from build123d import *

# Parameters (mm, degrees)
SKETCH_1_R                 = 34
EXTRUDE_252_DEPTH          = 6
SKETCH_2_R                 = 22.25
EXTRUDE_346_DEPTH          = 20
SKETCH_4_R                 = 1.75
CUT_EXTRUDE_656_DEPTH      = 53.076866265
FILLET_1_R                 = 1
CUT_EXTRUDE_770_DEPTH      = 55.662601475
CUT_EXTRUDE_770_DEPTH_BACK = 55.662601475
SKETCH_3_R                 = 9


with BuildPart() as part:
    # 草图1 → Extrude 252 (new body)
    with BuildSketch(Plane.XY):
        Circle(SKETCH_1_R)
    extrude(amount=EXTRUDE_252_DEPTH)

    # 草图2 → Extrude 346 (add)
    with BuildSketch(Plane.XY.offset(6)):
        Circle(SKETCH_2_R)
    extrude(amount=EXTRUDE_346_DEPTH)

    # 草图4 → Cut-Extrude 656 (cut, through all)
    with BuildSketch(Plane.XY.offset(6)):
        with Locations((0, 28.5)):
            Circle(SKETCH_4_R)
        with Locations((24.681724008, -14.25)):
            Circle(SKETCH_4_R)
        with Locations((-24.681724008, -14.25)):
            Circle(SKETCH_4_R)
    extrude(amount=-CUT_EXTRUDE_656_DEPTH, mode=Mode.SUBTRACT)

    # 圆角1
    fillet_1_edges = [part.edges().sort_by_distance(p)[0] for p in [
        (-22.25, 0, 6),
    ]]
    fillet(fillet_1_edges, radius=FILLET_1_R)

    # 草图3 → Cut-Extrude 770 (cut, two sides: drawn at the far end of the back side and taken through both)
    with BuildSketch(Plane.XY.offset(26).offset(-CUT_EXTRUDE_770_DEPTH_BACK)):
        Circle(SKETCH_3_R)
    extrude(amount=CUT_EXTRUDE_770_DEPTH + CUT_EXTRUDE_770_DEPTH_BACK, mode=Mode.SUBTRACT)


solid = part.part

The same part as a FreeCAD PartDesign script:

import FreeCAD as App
import Part
import Sketcher

V = App.Vector
Q = App.Units.Quantity


def edges_at(feature, points):
    """Names of the edges that pass closest to the given points."""
    edges = feature.Shape.Edges
    near = lambda p: min(range(len(edges)), key=lambda i: edges[i].distToShape(Part.Vertex(*p))[0])
    return sorted({f"Edge{near(p) + 1}" for p in points})

doc = App.newDocument("Part")
body = doc.addObject("PartDesign::Body", "Body")

# Sketch on XY plane
sketch1 = body.newObject("Sketcher::SketchObject", "Sketch")
sketch1.AttachmentSupport = (doc.getObject("XY_Plane"), [""])
sketch1.MapMode = "FlatFace"
sketch1.addGeometry(Part.Circle(V(0, 0, 0), V(0, 0, 1), 34), False)
sketch1.addConstraint(Sketcher.Constraint("Coincident", 0, 3, -1, 1))
sketch1.addConstraint(Sketcher.Constraint("Diameter", 0, Q("68 mm")))
pad1 = body.newObject("PartDesign::Pad", "Pad")
pad1.Profile = sketch1
pad1.Length = 6

# Sketch on XY plane
sketch2 = body.newObject("Sketcher::SketchObject", "Sketch001")
sketch2.AttachmentSupport = (doc.getObject("XY_Plane"), [""])
sketch2.MapMode = "FlatFace"
sketch2.AttachmentOffset = App.Placement(V(0, 0, 6), App.Rotation())
sketch2.addGeometry(Part.Circle(V(0, 0, 0), V(0, 0, 1), 22), False)
sketch2.addConstraint(Sketcher.Constraint("Coincident", 0, 3, -1, 1))
sketch2.addConstraint(Sketcher.Constraint("Diameter", 0, Q("44.5 mm")))
pad2 = body.newObject("PartDesign::Pad", "Pad001")
pad2.Profile = sketch2
pad2.Length = 20

# Sketch on XY plane
sketch3 = body.newObject("Sketcher::SketchObject", "Sketch002")
sketch3.AttachmentSupport = (doc.getObject("XY_Plane"), [""])
sketch3.MapMode = "FlatFace"
sketch3.AttachmentOffset = App.Placement(V(0, 0, 6), App.Rotation())
sketch3.addGeometry(Part.Circle(V(0, 28.5, 0), V(0, 0, 1), 1.8), False)
sketch3.addGeometry(Part.Circle(V(24.7, -14.2, 0), V(0, 0, 1), 1.8), False)
sketch3.addGeometry(Part.Circle(V(-24.7, -14.2, 0), V(0, 0, 1), 1.8), False)
sketch3.addConstraint(Sketcher.Constraint("Equal", 0, 1))
sketch3.addConstraint(Sketcher.Constraint("Equal", 1, 2))
sketch3.addConstraint(Sketcher.Constraint("Symmetric", 1, 3, 2, 3, -2))
sketch3.addConstraint(Sketcher.Constraint("PointOnObject", 0, 3, -2))
sketch3.addConstraint(Sketcher.Constraint("Diameter", 0, Q("3.5 mm")))
sketch3.addConstraint(Sketcher.Constraint("DistanceY", -1, 1, 0, 3, Q("28.5 mm")))
sketch3.addConstraint(Sketcher.Constraint("DistanceY", 1, 3, -1, 1, Q("14.25 mm")))
sketch3.addConstraint(Sketcher.Constraint("DistanceX", 2, 3, 1, 3, Q("49.363448 mm")))
pocket1 = body.newObject("PartDesign::Pocket", "Pocket")
pocket1.Profile = sketch3
pocket1.Type = "ThroughAll"
doc.recompute()

fillet = body.newObject("PartDesign::Fillet", "Fillet")
fillet.Base = (pocket1, edges_at(pocket1, [(-22.25, 0, 6)]))
fillet.Radius = 1

# Sketch on XY plane
sketch4 = body.newObject("Sketcher::SketchObject", "Sketch003")
sketch4.AttachmentSupport = (doc.getObject("XY_Plane"), [""])
sketch4.MapMode = "FlatFace"
sketch4.AttachmentOffset = App.Placement(V(0, 0, 26), App.Rotation())
sketch4.addGeometry(Part.Circle(V(0, 0, 0), V(0, 0, 1), 9), False)
sketch4.addConstraint(Sketcher.Constraint("Coincident", 0, 3, -1, 1))
sketch4.addConstraint(Sketcher.Constraint("Diameter", 0, Q("18 mm")))
pocket2 = body.newObject("PartDesign::Pocket", "Pocket001")
pocket2.Profile = sketch4
pocket2.Type = "ThroughAll"
pocket2.Midplane = True

doc.recompute()
